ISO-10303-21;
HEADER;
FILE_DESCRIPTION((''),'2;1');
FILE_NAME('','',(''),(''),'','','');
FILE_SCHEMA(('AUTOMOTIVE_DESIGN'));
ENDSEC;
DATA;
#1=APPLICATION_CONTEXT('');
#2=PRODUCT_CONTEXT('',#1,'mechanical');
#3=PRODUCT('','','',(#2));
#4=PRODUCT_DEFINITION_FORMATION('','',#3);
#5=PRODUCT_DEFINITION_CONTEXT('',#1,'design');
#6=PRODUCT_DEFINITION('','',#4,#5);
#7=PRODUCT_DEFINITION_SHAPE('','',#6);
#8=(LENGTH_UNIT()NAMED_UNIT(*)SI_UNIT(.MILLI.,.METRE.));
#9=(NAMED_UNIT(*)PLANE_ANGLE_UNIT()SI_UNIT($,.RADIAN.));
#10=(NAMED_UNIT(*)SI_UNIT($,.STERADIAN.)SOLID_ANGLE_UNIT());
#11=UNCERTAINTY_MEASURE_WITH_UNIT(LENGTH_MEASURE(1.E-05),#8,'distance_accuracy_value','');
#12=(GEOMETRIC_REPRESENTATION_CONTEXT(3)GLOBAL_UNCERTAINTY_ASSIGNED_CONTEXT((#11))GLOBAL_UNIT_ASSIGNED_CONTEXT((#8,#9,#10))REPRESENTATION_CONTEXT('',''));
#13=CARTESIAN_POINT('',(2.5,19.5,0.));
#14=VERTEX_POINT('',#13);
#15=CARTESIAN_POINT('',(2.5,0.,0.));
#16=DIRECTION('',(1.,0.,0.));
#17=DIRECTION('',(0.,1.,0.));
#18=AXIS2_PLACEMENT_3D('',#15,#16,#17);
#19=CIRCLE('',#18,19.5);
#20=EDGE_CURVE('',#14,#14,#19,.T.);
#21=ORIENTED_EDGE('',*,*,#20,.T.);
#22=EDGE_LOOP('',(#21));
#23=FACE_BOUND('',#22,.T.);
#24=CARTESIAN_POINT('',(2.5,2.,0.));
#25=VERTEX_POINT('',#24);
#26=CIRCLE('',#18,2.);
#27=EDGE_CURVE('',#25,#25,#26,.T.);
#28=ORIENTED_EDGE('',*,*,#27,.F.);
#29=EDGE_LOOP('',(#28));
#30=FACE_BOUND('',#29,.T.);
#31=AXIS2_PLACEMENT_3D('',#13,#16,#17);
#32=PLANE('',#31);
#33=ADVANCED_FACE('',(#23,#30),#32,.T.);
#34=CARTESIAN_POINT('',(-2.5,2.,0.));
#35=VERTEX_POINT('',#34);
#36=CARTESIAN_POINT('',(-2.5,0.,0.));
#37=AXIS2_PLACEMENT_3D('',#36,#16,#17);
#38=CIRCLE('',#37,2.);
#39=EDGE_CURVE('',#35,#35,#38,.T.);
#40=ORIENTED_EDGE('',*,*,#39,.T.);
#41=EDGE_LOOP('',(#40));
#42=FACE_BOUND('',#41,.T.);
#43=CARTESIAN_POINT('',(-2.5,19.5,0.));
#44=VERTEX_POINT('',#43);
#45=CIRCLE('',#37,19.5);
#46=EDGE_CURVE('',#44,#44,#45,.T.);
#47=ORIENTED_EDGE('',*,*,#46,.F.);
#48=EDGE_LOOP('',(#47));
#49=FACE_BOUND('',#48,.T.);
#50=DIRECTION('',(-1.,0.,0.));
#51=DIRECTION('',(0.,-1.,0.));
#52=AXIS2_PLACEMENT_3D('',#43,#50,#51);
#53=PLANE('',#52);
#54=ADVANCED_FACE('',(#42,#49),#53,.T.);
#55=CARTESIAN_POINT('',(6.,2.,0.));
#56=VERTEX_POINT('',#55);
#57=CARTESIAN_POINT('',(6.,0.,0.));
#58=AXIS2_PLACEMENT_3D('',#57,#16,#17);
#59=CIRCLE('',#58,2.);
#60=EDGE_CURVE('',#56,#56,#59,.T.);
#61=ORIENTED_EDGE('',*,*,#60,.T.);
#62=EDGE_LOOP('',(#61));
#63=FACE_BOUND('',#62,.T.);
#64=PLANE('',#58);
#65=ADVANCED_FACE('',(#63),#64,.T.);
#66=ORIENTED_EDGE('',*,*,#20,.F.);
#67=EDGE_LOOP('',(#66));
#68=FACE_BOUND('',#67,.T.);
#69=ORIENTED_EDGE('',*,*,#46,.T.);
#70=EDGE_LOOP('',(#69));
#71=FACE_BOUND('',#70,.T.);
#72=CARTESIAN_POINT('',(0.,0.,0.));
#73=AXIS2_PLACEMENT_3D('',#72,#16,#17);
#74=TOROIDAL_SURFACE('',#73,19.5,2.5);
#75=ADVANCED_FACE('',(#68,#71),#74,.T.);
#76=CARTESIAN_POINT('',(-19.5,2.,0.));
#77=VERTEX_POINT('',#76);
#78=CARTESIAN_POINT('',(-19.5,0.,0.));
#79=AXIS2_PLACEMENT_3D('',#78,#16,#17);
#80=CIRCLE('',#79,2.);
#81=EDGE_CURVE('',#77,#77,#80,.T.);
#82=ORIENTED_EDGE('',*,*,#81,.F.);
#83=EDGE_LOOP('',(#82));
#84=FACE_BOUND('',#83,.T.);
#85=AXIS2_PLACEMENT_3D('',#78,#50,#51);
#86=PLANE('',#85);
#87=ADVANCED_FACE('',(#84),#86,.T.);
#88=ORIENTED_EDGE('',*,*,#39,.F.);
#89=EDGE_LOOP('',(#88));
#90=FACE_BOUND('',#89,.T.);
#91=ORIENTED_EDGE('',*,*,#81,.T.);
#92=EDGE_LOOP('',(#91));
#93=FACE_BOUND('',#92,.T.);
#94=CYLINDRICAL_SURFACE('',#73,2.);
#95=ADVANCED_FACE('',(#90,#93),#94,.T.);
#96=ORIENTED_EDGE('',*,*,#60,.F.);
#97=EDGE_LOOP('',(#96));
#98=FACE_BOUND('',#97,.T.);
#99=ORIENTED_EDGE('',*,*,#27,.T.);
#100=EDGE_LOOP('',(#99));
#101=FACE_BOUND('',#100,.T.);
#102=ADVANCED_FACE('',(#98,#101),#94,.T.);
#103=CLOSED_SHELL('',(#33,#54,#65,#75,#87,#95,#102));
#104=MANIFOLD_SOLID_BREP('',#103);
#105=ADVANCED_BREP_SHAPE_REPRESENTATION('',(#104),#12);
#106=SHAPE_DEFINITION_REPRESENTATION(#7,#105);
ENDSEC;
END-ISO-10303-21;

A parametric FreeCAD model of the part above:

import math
import FreeCAD as App
import Part
import Sketcher
Q = App.Units.Quantity

doc = App.newDocument("Part")
body = doc.addObject("PartDesign::Body", "Body")

sketch1 = body.newObject("Sketcher::SketchObject", "Sketch")
sketch1.AttachmentSupport = (doc.getObject("XY_Plane"), [""])
sketch1.MapMode = "FlatFace"
sketch1.addGeometry([
    Part.LineSegment(App.Vector(-2.5, 19.5, 0), App.Vector(-2.5, 2, 0)),
    Part.LineSegment(App.Vector(-2.5, 2, 0), App.Vector(-19.5, 2, 0)),
    Part.LineSegment(App.Vector(-19.5, 2, 0), App.Vector(-19.5, 0, 0)),
    Part.LineSegment(App.Vector(-19.5, 0, 0), App.Vector(6, 0, 0)),
    Part.LineSegment(App.Vector(6, 0, 0), App.Vector(6, 2, 0)),
    Part.LineSegment(App.Vector(6, 2, 0), App.Vector(2.5, 2, 0)),
    Part.LineSegment(App.Vector(2.5, 2, 0), App.Vector(2.5, 19.5, 0)),
    Part.ArcOfCircle(Part.Circle(App.Vector(0, 19.5, 0), App.Vector(0, 0, 1), 2.5), math.radians(0), math.radians(180)),
], False)
sketch1.addConstraint([
    Sketcher.Constraint("Coincident", 0, 2, 1, 1),
    Sketcher.Constraint("Coincident", 1, 2, 2, 1),
    Sketcher.Constraint("Coincident", 2, 2, 3, 1),
    Sketcher.Constraint("Coincident", 3, 2, 4, 1),
    Sketcher.Constraint("Coincident", 4, 2, 5, 1),
    Sketcher.Constraint("Coincident", 5, 2, 6, 1),
    Sketcher.Constraint("Tangent", 6, 2, 7, 1),
    Sketcher.Constraint("Tangent", 7, 2, 0, 1),
    Sketcher.Constraint("Vertical", 0),
    Sketcher.Constraint("Horizontal", 1),
    Sketcher.Constraint("Vertical", 2),
    Sketcher.Constraint("Horizontal", 3),
    Sketcher.Constraint("Vertical", 4),
    Sketcher.Constraint("Horizontal", 5),
    Sketcher.Constraint("Vertical", 6),
    Sketcher.Constraint("Symmetric", 0, 2, 5, 2, -2),
    Sketcher.Constraint("PointOnObject", 2, 2, -1),
    Sketcher.Constraint("Radius", 7, Q("2.5 mm")),
    Sketcher.Constraint("DistanceX", 1, 2, 1, 1, Q("17 mm")),
    Sketcher.Constraint("DistanceY", 2, 2, 2, 1, Q("2 mm")),
    Sketcher.Constraint("DistanceX", 3, 1, 3, 2, Q("25.5 mm")),
    Sketcher.Constraint("DistanceY", 0, 2, 0, 1, Q("17.5 mm")),
])
revolution = body.newObject("PartDesign::Revolution", "Revolution")
revolution.Profile = sketch1
revolution.ReferenceAxis = (sketch1, ["H_Axis"])
revolution.Angle = 360

doc.recompute()
